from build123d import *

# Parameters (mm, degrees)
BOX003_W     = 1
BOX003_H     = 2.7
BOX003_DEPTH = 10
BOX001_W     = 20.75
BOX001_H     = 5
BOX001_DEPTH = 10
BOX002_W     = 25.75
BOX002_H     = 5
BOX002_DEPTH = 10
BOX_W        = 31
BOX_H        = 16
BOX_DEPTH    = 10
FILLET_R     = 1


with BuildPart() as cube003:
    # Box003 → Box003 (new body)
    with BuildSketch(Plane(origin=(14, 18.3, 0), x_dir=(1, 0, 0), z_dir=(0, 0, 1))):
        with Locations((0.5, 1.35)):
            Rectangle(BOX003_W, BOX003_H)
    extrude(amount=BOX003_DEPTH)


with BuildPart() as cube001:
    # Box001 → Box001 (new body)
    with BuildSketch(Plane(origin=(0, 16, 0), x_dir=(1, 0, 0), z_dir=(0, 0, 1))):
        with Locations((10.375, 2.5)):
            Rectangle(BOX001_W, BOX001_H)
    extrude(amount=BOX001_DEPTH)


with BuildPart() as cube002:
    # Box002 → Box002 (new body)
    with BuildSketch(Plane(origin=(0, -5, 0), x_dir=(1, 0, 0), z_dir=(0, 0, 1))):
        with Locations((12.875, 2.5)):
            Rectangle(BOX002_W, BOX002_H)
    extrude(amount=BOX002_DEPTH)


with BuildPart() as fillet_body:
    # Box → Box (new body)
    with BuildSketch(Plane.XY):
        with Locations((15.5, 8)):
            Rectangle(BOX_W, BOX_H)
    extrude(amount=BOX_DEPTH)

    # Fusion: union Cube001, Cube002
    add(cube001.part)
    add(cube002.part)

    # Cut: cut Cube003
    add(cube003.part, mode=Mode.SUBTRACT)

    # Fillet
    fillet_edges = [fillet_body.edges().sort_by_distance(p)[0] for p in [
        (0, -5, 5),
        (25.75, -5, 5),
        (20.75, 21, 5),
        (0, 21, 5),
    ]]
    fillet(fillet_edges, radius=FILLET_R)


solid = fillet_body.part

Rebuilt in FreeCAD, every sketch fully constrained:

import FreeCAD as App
import Part
import Sketcher
from FreeCAD import Vector
Q = App.Units.Quantity


def edges_at(feature, points):
    """Names of the edges that pass closest to the given points."""
    edges = feature.Shape.Edges
    near = lambda p: min(range(len(edges)), key=lambda i: edges[i].distToShape(Part.Vertex(*p))[0])
    return sorted({f"Edge{near(p) + 1}" for p in points})

doc = App.newDocument("Part")
params = doc.addObject("Spreadsheet::Sheet", "Params")
for row, (alias, value) in enumerate([
    ("sketch1_width", "1 mm"),
    ("sketch1_height", "2.7 mm"),
    ("pad1_length", "10 mm"),
    ("sketch2_height", "5 mm"),
    ("sketch2_width", "20.75 mm"),
    ("pad2_length", "10 mm"),
    ("sketch3_height", "5 mm"),
    ("sketch3_width", "25.75 mm"),
    ("pad3_length", "10 mm"),
    ("sketch4_width", "31 mm"),
    ("sketch4_height", "16 mm"),
    ("pad4_length", "10 mm"),
    ("fillet_radius", "1 mm"),
], start=1):
    params.set(f"A{row}", alias)
    params.set(f"B{row}", "=" + value)
    params.setAlias(f"B{row}", alias)

body = doc.addObject("PartDesign::Body", "Body")

# Sketch on XY plane
sketch1 = body.newObject("Sketcher::SketchObject", "Sketch")
sketch1.AttachmentSupport = (doc.getObject("XY_Plane"), [""])
sketch1.MapMode = "FlatFace"
sketch1.addGeometry([
    Part.LineSegment(Vector(14, 21, 0), Vector(14, 18.3, 0)),
    Part.LineSegment(Vector(14, 18.3, 0), Vector(15, 18.3, 0)),
    Part.LineSegment(Vector(15, 18.3, 0), Vector(15, 21, 0)),
    Part.LineSegment(Vector(15, 21, 0), Vector(14, 21, 0)),
], False)
sketch1.addConstraint([
    Sketcher.Constraint("Coincident", 0, 2, 1, 1),
    Sketcher.Constraint("Coincident", 1, 2, 2, 1),
    Sketcher.Constraint("Coincident", 2, 2, 3, 1),
    Sketcher.Constraint("Coincident", 3, 2, 0, 1),
    Sketcher.Constraint("Vertical", 0),
    Sketcher.Constraint("Horizontal", 1),
    Sketcher.Constraint("Vertical", 2),
    Sketcher.Constraint("Horizontal", 3),
    Sketcher.Constraint("DistanceX", 1, 1, 1, 2, Q("1 mm")),
    Sketcher.Constraint("DistanceY", 0, 2, 0, 1, Q("2.7 mm")),
    Sketcher.Constraint("DistanceX", -1, 1, 0, 2, Q("14 mm")),
    Sketcher.Constraint("DistanceY", -1, 1, 2, 2, Q("21 mm")),
])
sketch1.setExpression("Constraints[8]", "Params.sketch1_width")
sketch1.setExpression("Constraints[9]", "Params.sketch1_height")
pad1 = body.newObject("PartDesign::Pad", "Pad")
pad1.Profile = sketch1
pad1.setExpression("Length", "Params.pad1_length")
body2 = doc.addObject("PartDesign::Body", "Body001")

# Sketch on XY plane
sketch2 = body2.newObject("Sketcher::SketchObject", "Sketch001")
sketch2.AttachmentSupport = (doc.getObject("XY_Plane001"), [""])
sketch2.MapMode = "FlatFace"
sketch2.addGeometry([
    Part.LineSegment(Vector(0, 21, 0), Vector(0, 16, 0)),
    Part.LineSegment(Vector(0, 16, 0), Vector(21, 16, 0)),
    Part.LineSegment(Vector(21, 16, 0), Vector(21, 21, 0)),
    Part.LineSegment(Vector(21, 21, 0), Vector(0, 21, 0)),
], False)
sketch2.addConstraint([
    Sketcher.Constraint("Coincident", 0, 2, 1, 1),
    Sketcher.Constraint("Coincident", 1, 2, 2, 1),
    Sketcher.Constraint("Coincident", 2, 2, 3, 1),
    Sketcher.Constraint("Coincident", 3, 2, 0, 1),
    Sketcher.Constraint("Vertical", 0),
    Sketcher.Constraint("Horizontal", 1),
    Sketcher.Constraint("Vertical", 2),
    Sketcher.Constraint("Horizontal", 3),
    Sketcher.Constraint("PointOnObject", 0, 2, -2),
    Sketcher.Constraint("DistanceY", 0, 2, 0, 1, Q("5 mm")),
    Sketcher.Constraint("DistanceY", -1, 1, 0, 2, Q("16 mm")),
    Sketcher.Constraint("DistanceX", 1, 1, 1, 2, Q("20.75 mm")),
])
sketch2.setExpression("Constraints[9]", "Params.sketch2_height")
sketch2.setExpression("Constraints[11]", "Params.sketch2_width")
pad2 = body2.newObject("PartDesign::Pad", "Pad001")
pad2.Profile = sketch2
pad2.setExpression("Length", "Params.pad2_length")
body3 = doc.addObject("PartDesign::Body", "Body002")

# Sketch on XY plane
sketch3 = body3.newObject("Sketcher::SketchObject", "Sketch002")
sketch3.AttachmentSupport = (doc.getObject("XY_Plane002"), [""])
sketch3.MapMode = "FlatFace"
sketch3.addGeometry([
    Part.LineSegment(Vector(0, 0, 0), Vector(0, -5, 0)),
    Part.LineSegment(Vector(0, -5, 0), Vector(26, -5, 0)),
    Part.LineSegment(Vector(26, -5, 0), Vector(26, 0, 0)),
    Part.LineSegment(Vector(26, 0, 0), Vector(0, 0, 0)),
], False)
sketch3.addConstraint([
    Sketcher.Constraint("Coincident", 0, 2, 1, 1),
    Sketcher.Constraint("Coincident", 1, 2, 2, 1),
    Sketcher.Constraint("Coincident", 2, 2, 3, 1),
    Sketcher.Constraint("Coincident", 3, 2, 0, 1),
    Sketcher.Constraint("Vertical", 0),
    Sketcher.Constraint("Horizontal", 1),
    Sketcher.Constraint("Vertical", 2),
    Sketcher.Constraint("Horizontal", 3),
    Sketcher.Constraint("Coincident", 3, 2, -1, 1),
    Sketcher.Constraint("DistanceY", 0, 2, 0, 1, Q("5 mm")),
    Sketcher.Constraint("DistanceX", 1, 1, 1, 2, Q("25.75 mm")),
])
sketch3.setExpression("Constraints[9]", "Params.sketch3_height")
sketch3.setExpression("Constraints[10]", "Params.sketch3_width")
pad3 = body3.newObject("PartDesign::Pad", "Pad002")
pad3.Profile = sketch3
pad3.setExpression("Length", "Params.pad3_length")
body4 = doc.addObject("PartDesign::Body", "Body003")

# Sketch on XY plane
sketch4 = body4.newObject("Sketcher::SketchObject", "Sketch003")
sketch4.AttachmentSupport = (doc.getObject("XY_Plane003"), [""])
sketch4.MapMode = "FlatFace"
sketch4.addGeometry([
    Part.LineSegment(Vector(0, 16, 0), Vector(0, 0, 0)),
    Part.LineSegment(Vector(0, 0, 0), Vector(31, 0, 0)),
    Part.LineSegment(Vector(31, 0, 0), Vector(31, 16, 0)),
    Part.LineSegment(Vector(31, 16, 0), Vector(0, 16, 0)),
], False)
sketch4.addConstraint([
    Sketcher.Constraint("Coincident", 0, 2, 1, 1),
    Sketcher.Constraint("Coincident", 1, 2, 2, 1),
    Sketcher.Constraint("Coincident", 2, 2, 3, 1),
    Sketcher.Constraint("Coincident", 3, 2, 0, 1),
    Sketcher.Constraint("Vertical", 0),
    Sketcher.Constraint("Horizontal", 1),
    Sketcher.Constraint("Vertical", 2),
    Sketcher.Constraint("Horizontal", 3),
    Sketcher.Constraint("Coincident", 0, 2, -1, 1),
    Sketcher.Constraint("DistanceX", 1, 1, 1, 2, Q("31 mm")),
    Sketcher.Constraint("DistanceY", 0, 2, 0, 1, Q("16 mm")),
])
sketch4.setExpression("Constraints[9]", "Params.sketch4_width")
sketch4.setExpression("Constraints[10]", "Params.sketch4_height")
pad4 = body4.newObject("PartDesign::Pad", "Pad003")
pad4.Profile = sketch4
pad4.setExpression("Length", "Params.pad4_length")
doc.recompute()

boolean = body4.newObject("PartDesign::Boolean", "Boolean")
boolean.Type = "Fuse"
boolean.addObjects([body2])
doc.recompute()

boolean2 = body4.newObject("PartDesign::Boolean", "Boolean001")
boolean2.Type = "Fuse"
boolean2.addObjects([body3])
doc.recompute()

boolean3 = body4.newObject("PartDesign::Boolean", "Boolean002")
boolean3.Type = "Cut"
boolean3.addObjects([body])
doc.recompute()

fillet = body4.newObject("PartDesign::Fillet", "Fillet")
fillet.Base = (boolean3, edges_at(boolean3, [
    (0, -5, 5),
    (25.75, -5, 5),
    (20.75, 21, 5),
    (0, 21, 5),
]))
fillet.setExpression("Radius", "Params.fillet_radius")

doc.recompute()
